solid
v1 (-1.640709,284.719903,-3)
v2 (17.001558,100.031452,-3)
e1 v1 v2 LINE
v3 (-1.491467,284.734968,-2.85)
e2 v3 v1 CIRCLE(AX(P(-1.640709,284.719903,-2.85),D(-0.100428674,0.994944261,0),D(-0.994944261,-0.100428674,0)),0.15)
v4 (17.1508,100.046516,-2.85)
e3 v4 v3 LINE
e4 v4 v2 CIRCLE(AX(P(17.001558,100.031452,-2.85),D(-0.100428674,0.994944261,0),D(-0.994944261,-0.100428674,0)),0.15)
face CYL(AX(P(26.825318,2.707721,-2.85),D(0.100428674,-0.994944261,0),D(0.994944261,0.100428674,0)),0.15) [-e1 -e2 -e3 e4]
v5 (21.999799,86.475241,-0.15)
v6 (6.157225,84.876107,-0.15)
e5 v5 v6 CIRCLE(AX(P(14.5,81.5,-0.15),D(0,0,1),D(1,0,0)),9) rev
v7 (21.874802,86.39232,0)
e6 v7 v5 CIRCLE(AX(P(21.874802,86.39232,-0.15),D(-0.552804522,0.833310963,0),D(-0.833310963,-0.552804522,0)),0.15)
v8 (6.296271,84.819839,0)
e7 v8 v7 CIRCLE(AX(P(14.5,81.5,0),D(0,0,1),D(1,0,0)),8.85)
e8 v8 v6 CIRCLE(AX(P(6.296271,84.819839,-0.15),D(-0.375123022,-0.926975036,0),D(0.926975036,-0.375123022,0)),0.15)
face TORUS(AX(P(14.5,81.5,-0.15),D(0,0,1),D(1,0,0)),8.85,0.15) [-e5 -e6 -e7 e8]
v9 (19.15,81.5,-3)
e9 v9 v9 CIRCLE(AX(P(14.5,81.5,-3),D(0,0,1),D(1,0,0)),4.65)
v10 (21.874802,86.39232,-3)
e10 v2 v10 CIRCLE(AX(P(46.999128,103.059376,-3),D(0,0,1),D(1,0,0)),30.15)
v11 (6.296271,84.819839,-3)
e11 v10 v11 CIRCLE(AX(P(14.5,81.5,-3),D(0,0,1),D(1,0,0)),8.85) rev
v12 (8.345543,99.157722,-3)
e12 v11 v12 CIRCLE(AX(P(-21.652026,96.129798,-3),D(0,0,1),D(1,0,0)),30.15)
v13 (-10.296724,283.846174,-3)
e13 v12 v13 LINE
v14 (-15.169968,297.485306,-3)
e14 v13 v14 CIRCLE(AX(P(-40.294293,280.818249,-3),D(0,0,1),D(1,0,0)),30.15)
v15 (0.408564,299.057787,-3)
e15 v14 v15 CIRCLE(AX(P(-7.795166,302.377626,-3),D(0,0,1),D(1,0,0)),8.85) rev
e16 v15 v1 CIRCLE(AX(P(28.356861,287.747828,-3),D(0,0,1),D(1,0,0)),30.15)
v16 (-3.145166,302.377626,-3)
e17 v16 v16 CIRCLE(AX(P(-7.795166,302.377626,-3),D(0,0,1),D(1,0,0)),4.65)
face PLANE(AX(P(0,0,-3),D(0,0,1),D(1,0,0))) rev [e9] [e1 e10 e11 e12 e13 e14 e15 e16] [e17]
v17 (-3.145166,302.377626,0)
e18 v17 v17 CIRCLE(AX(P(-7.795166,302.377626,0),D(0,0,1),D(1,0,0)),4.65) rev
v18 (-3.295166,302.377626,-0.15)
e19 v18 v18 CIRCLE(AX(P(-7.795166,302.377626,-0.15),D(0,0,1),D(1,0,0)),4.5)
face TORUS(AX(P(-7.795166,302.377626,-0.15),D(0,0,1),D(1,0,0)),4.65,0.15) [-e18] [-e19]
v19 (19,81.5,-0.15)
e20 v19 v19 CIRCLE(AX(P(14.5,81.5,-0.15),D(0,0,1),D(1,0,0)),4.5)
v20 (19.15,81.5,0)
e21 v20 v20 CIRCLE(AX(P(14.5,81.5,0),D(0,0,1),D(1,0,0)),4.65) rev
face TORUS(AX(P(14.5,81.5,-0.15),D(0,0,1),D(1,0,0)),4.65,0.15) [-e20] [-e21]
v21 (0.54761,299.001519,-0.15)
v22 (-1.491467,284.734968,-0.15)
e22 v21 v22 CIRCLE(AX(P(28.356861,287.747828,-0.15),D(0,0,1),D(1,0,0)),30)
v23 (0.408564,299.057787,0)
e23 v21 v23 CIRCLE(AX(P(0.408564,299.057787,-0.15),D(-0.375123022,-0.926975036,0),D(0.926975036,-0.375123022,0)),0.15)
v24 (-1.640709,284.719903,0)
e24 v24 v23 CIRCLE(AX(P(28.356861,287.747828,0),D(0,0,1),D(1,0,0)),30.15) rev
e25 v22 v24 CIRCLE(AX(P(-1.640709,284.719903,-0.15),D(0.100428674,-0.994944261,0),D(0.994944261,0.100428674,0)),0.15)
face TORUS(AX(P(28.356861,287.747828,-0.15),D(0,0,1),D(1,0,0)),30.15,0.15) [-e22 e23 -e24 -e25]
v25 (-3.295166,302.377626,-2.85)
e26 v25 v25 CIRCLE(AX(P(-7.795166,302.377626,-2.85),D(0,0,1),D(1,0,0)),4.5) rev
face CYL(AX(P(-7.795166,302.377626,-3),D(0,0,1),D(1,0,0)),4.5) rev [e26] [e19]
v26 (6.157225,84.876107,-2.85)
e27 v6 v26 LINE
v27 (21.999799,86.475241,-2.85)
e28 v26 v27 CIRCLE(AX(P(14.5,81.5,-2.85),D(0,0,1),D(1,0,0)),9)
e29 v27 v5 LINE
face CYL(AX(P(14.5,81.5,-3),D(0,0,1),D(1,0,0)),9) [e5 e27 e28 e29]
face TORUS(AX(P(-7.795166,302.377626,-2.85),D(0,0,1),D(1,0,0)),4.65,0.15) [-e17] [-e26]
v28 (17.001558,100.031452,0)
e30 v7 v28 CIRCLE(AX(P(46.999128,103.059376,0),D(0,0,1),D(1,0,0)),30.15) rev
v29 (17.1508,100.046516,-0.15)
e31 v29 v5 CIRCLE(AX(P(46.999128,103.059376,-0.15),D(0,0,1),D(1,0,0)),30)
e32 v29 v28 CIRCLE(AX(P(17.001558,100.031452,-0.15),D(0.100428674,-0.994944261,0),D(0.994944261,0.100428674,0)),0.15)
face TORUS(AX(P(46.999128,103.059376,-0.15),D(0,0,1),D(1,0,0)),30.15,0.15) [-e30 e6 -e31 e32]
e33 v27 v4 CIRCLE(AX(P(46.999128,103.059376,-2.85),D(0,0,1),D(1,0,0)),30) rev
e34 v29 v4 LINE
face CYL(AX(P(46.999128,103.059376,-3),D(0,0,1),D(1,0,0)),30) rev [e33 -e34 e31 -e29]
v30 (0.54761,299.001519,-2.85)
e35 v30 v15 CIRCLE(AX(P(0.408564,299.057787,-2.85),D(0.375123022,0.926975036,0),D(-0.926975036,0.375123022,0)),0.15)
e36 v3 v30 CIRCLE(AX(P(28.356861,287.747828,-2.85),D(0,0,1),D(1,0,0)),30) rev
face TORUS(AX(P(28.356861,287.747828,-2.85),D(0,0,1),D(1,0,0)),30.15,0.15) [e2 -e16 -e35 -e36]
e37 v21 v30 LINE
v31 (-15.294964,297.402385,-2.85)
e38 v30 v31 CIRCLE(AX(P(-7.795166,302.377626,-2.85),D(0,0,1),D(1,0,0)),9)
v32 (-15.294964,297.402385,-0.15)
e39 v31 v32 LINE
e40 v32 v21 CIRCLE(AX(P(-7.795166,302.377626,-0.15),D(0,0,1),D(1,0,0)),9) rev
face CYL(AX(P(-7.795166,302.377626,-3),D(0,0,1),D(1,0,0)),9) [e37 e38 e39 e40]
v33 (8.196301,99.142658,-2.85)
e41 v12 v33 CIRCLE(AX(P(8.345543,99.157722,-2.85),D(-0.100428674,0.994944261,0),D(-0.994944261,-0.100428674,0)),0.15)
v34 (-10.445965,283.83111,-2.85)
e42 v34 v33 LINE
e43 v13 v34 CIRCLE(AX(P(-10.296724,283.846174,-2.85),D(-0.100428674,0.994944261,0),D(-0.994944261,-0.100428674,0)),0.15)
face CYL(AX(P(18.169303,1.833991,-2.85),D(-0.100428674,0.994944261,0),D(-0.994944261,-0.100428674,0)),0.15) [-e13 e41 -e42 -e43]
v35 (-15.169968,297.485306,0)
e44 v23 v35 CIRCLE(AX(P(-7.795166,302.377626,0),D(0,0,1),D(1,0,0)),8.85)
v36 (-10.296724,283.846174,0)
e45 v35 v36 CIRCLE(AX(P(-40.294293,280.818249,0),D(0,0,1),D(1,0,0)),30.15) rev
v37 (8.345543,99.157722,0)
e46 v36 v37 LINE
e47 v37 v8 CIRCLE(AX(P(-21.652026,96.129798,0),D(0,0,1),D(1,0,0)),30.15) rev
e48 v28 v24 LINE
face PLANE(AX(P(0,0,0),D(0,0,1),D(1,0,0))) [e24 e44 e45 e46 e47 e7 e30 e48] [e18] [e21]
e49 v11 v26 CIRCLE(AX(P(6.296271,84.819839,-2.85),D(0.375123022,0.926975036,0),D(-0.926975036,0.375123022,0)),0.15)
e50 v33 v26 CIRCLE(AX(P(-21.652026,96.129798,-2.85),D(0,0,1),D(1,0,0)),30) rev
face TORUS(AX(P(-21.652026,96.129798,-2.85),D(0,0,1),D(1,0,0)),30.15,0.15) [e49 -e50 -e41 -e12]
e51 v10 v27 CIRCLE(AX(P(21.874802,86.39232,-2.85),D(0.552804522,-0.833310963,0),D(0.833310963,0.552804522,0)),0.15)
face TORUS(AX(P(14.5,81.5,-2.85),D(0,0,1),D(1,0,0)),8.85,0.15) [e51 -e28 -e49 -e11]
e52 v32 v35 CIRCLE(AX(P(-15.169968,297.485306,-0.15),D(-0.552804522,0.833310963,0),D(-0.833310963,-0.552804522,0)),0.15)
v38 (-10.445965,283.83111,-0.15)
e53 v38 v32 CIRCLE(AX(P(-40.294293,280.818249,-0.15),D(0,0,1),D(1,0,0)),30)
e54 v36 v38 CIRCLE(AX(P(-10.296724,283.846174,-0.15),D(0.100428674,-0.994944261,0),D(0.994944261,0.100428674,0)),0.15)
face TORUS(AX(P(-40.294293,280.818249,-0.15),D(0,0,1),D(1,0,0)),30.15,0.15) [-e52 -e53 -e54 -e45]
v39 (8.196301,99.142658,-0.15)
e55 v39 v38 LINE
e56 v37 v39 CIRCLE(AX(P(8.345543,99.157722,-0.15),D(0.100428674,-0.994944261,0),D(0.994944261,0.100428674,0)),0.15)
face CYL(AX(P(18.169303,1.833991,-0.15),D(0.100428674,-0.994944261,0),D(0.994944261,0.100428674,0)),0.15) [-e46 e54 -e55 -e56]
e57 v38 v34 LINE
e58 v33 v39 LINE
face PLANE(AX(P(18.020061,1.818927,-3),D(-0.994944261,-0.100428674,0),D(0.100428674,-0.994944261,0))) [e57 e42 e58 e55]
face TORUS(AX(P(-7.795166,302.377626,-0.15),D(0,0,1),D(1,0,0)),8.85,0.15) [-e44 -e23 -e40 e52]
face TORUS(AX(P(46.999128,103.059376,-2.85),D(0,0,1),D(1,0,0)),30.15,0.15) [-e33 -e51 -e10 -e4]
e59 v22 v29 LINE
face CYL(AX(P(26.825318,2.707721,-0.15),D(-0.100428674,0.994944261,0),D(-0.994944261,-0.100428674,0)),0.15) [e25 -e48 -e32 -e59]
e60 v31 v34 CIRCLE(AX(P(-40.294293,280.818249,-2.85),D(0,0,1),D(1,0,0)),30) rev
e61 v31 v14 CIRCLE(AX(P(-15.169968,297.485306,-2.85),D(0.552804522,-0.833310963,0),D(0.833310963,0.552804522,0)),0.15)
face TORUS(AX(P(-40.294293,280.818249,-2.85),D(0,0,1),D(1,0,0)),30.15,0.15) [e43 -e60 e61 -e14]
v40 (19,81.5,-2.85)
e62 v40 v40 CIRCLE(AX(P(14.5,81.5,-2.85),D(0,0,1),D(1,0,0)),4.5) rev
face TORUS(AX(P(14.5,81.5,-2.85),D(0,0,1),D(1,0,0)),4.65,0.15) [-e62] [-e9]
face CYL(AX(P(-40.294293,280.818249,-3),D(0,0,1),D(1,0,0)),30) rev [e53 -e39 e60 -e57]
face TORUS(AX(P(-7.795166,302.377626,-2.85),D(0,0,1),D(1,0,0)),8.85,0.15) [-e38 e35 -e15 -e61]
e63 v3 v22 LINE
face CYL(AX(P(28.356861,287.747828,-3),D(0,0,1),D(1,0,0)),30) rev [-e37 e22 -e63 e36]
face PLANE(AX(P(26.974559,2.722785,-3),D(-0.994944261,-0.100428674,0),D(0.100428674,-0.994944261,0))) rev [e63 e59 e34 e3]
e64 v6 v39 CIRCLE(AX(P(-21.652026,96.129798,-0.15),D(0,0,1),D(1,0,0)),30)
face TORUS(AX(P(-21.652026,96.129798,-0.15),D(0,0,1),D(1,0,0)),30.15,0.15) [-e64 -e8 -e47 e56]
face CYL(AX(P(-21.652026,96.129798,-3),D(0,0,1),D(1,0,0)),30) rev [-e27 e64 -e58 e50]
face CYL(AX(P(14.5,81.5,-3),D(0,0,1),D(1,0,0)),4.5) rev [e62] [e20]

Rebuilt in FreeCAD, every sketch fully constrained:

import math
import FreeCAD as App
import Part
import Sketcher

V = App.Vector
Q = App.Units.Quantity


def edges_at(feature, points):
    """Names of the edges that pass closest to the given points."""
    edges = feature.Shape.Edges
    near = lambda p: min(range(len(edges)), key=lambda i: edges[i].distToShape(Part.Vertex(*p))[0])
    return sorted({f"Edge{near(p) + 1}" for p in points})

doc = App.newDocument("Part")
params = doc.addObject("Spreadsheet::Sheet", "Params")
for row, (alias, value) in enumerate([
    ("sketch1_diameter", "9 mm"),
    ("sketch1_radius", "9 mm"),
    ("pad1_length", "3 mm"),
    ("fillet_radius", "30 mm"),
    ("fillet2_radius", "0.15 mm"),
], start=1):
    params.set(f"A{row}", alias)
    params.set(f"B{row}", "=" + value)
    params.setAlias(f"B{row}", alias)

body = doc.addObject("PartDesign::Body", "Body")

sketch1 = body.newObject("Sketcher::SketchObject", "Sketch")
sketch1.AttachmentSupport = (doc.getObject("XY_Plane"), [""])
sketch1.MapMode = "FlatFace"
sketch1.addGeometry([
    Part.ArcOfCircle(Part.Circle(V(14.5, 81.5, 0), V(0, 0, 1), 9), math.radians(126), math.radians(426)),
    Part.LineSegment(V(18.2, 89.7, 0), V(-2.5, 295.1, 0)),
    Part.ArcOfCircle(Part.Circle(V(-7.8, 302.4, 0), V(0, 0, 1), 9), math.radians(-54), math.radians(246)),
    Part.LineSegment(V(-11.5, 294.2, 0), V(9.2, 88.8, 0)),
    Part.ArcOfCircle(Part.Circle(V(-7.8, 302.4, 0), V(0, 0, 1), 4.5), math.radians(-174), math.radians(6)),
    Part.ArcOfCircle(Part.Circle(V(-7.8, 302.4, 0), V(0, 0, 1), 4.5), math.radians(6), math.radians(186)),
    Part.Circle(V(14.5, 81.5, 0), V(0, 0, 1), 4.5),
], False)
sketch1.addConstraint([
    Sketcher.Constraint("Coincident", 0, 2, 1, 1),
    Sketcher.Constraint("Coincident", 1, 2, 2, 1),
    Sketcher.Constraint("Coincident", 2, 2, 3, 1),
    Sketcher.Constraint("Coincident", 3, 2, 0, 1),
    Sketcher.Constraint("Tangent", 4, 1, 5, 2),
    Sketcher.Constraint("Coincident", 5, 1, 4, 2),
    Sketcher.Constraint("Coincident", 4, 3, 2, 3),
    Sketcher.Constraint("Coincident", 6, 3, 0, 3),
    Sketcher.Constraint("Equal", 0, 2),
    Sketcher.Constraint("Equal", 5, 6),
    Sketcher.Constraint("Parallel", 1, 3),
    Sketcher.Constraint("Equal", 1, 3),
    Sketcher.Constraint("Diameter", 6, Q("9 mm")),
    Sketcher.Constraint("Radius", 0, Q("9 mm")),
    Sketcher.Constraint("DistanceX", -1, 1, 0, 3, Q("14.5 mm")),
    Sketcher.Constraint("DistanceY", -1, 1, 0, 3, Q("81.5 mm")),
    Sketcher.Constraint("DistanceX", 2, 2, 1, 2, Q("8.954498 mm")),
    Sketcher.Constraint("DistanceX", 4, 1, 5, 1, Q("8.954498 mm")),
    Sketcher.Constraint("DistanceY", -1, 1, 1, 2, Q("295.074732 mm")),
    Sketcher.Constraint("DistanceX", 2, 2, -1, 1, Q("11.489651 mm")),
    Sketcher.Constraint("DistanceY", 0, 2, 1, 2, Q("205.36798 mm")),
    Sketcher.Constraint("DistanceX", 4, 1, 4, 3, Q("4.477249 mm")),
])
sketch1.setExpression("Constraints[12]", "Params.sketch1_diameter")
sketch1.setExpression("Constraints[13]", "Params.sketch1_radius")
pad1 = body.newObject("PartDesign::Pad", "Pad")
pad1.Profile = sketch1
pad1.setExpression("Length", "Params.pad1_length")
pad1.Reversed = True
doc.recompute()

fillet = body.newObject("PartDesign::Fillet", "Fillet")
fillet.Base = (pad1, edges_at(pad1, [
    (18.194, 89.707, -1.5),
    (9.24, 88.803, -1.5),
    (-11.49, 294.171, -1.5),
    (-2.535, 295.075, -1.5),
]))
fillet.setExpression("Radius", "Params.fillet_radius")
doc.recompute()

fillet2 = body.newObject("PartDesign::Fillet", "Fillet001")
fillet2.Base = (fillet, edges_at(fillet, [
    (-1.125, 191.487, 0),
    (-1.125, 191.487, -3),
    (15.404, 72.546, 0),
    (15.404, 72.546, -3),
    (18.977, 81.952, -3),
    (7.83, 192.391, 0),
    (7.83, 192.391, -3),
    (-8.699, 311.332, 0),
    (-8.699, 311.332, -3),
    (8.046, 91.885, 0),
    (8.046, 91.885, -3),
    (18.748, 92.965, 0),
    (18.748, 92.965, -3),
    (-7.343, 297.9, -3),
    (-12.043, 290.912, 0),
    (-12.043, 290.912, -3),
    (-1.341, 291.993, 0),
    (-1.341, 291.993, -3),
    (-7.343, 297.9, 0),
    (18.977, 81.952, 0),
]))
fillet2.setExpression("Radius", "Params.fillet2_radius")

doc.recompute()
